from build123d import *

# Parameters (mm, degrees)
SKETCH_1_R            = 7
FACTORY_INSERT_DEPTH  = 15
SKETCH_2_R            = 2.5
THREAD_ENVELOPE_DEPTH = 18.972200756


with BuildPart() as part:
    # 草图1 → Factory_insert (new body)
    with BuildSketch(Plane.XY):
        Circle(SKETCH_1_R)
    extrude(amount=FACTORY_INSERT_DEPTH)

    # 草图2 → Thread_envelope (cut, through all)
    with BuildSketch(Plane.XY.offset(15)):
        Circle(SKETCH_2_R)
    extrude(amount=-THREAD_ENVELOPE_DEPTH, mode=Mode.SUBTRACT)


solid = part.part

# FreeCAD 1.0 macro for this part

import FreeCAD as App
import Part
import Sketcher

V = App.Vector
Q = App.Units.Quantity

doc = App.newDocument("Part")
body = doc.addObject("PartDesign::Body", "Body")

# Sketch on XY plane
sketch1 = body.newObject("Sketcher::SketchObject", "Sketch")
sketch1.AttachmentSupport = (doc.getObject("XY_Plane"), [""])
sketch1.MapMode = "FlatFace"
sketch1.addGeometry(Part.Circle(V(0, 0, 0), V(0, 0, 1), 7), False)
sketch1.addConstraint(Sketcher.Constraint("Coincident", 0, 3, -1, 1))
sketch1.addConstraint(Sketcher.Constraint("Diameter", 0, Q("14 mm")))
pad1 = body.newObject("PartDesign::Pad", "Pad")
pad1.Profile = sketch1
pad1.Length = 15

# Sketch on XY plane
sketch2 = body.newObject("Sketcher::SketchObject", "Sketch001")
sketch2.AttachmentSupport = (doc.getObject("XY_Plane"), [""])
sketch2.MapMode = "FlatFace"
sketch2.AttachmentOffset = App.Placement(V(0, 0, 15), App.Rotation())
sketch2.addGeometry(Part.Circle(V(0, 0, 0), V(0, 0, 1), 2.5), False)
sketch2.addConstraint(Sketcher.Constraint("Coincident", 0, 3, -1, 1))
sketch2.addConstraint(Sketcher.Constraint("Diameter", 0, Q("5 mm")))
pocket1 = body.newObject("PartDesign::Pocket", "Pocket")
pocket1.Profile = sketch2
pocket1.Type = "ThroughAll"

doc.recompute()
